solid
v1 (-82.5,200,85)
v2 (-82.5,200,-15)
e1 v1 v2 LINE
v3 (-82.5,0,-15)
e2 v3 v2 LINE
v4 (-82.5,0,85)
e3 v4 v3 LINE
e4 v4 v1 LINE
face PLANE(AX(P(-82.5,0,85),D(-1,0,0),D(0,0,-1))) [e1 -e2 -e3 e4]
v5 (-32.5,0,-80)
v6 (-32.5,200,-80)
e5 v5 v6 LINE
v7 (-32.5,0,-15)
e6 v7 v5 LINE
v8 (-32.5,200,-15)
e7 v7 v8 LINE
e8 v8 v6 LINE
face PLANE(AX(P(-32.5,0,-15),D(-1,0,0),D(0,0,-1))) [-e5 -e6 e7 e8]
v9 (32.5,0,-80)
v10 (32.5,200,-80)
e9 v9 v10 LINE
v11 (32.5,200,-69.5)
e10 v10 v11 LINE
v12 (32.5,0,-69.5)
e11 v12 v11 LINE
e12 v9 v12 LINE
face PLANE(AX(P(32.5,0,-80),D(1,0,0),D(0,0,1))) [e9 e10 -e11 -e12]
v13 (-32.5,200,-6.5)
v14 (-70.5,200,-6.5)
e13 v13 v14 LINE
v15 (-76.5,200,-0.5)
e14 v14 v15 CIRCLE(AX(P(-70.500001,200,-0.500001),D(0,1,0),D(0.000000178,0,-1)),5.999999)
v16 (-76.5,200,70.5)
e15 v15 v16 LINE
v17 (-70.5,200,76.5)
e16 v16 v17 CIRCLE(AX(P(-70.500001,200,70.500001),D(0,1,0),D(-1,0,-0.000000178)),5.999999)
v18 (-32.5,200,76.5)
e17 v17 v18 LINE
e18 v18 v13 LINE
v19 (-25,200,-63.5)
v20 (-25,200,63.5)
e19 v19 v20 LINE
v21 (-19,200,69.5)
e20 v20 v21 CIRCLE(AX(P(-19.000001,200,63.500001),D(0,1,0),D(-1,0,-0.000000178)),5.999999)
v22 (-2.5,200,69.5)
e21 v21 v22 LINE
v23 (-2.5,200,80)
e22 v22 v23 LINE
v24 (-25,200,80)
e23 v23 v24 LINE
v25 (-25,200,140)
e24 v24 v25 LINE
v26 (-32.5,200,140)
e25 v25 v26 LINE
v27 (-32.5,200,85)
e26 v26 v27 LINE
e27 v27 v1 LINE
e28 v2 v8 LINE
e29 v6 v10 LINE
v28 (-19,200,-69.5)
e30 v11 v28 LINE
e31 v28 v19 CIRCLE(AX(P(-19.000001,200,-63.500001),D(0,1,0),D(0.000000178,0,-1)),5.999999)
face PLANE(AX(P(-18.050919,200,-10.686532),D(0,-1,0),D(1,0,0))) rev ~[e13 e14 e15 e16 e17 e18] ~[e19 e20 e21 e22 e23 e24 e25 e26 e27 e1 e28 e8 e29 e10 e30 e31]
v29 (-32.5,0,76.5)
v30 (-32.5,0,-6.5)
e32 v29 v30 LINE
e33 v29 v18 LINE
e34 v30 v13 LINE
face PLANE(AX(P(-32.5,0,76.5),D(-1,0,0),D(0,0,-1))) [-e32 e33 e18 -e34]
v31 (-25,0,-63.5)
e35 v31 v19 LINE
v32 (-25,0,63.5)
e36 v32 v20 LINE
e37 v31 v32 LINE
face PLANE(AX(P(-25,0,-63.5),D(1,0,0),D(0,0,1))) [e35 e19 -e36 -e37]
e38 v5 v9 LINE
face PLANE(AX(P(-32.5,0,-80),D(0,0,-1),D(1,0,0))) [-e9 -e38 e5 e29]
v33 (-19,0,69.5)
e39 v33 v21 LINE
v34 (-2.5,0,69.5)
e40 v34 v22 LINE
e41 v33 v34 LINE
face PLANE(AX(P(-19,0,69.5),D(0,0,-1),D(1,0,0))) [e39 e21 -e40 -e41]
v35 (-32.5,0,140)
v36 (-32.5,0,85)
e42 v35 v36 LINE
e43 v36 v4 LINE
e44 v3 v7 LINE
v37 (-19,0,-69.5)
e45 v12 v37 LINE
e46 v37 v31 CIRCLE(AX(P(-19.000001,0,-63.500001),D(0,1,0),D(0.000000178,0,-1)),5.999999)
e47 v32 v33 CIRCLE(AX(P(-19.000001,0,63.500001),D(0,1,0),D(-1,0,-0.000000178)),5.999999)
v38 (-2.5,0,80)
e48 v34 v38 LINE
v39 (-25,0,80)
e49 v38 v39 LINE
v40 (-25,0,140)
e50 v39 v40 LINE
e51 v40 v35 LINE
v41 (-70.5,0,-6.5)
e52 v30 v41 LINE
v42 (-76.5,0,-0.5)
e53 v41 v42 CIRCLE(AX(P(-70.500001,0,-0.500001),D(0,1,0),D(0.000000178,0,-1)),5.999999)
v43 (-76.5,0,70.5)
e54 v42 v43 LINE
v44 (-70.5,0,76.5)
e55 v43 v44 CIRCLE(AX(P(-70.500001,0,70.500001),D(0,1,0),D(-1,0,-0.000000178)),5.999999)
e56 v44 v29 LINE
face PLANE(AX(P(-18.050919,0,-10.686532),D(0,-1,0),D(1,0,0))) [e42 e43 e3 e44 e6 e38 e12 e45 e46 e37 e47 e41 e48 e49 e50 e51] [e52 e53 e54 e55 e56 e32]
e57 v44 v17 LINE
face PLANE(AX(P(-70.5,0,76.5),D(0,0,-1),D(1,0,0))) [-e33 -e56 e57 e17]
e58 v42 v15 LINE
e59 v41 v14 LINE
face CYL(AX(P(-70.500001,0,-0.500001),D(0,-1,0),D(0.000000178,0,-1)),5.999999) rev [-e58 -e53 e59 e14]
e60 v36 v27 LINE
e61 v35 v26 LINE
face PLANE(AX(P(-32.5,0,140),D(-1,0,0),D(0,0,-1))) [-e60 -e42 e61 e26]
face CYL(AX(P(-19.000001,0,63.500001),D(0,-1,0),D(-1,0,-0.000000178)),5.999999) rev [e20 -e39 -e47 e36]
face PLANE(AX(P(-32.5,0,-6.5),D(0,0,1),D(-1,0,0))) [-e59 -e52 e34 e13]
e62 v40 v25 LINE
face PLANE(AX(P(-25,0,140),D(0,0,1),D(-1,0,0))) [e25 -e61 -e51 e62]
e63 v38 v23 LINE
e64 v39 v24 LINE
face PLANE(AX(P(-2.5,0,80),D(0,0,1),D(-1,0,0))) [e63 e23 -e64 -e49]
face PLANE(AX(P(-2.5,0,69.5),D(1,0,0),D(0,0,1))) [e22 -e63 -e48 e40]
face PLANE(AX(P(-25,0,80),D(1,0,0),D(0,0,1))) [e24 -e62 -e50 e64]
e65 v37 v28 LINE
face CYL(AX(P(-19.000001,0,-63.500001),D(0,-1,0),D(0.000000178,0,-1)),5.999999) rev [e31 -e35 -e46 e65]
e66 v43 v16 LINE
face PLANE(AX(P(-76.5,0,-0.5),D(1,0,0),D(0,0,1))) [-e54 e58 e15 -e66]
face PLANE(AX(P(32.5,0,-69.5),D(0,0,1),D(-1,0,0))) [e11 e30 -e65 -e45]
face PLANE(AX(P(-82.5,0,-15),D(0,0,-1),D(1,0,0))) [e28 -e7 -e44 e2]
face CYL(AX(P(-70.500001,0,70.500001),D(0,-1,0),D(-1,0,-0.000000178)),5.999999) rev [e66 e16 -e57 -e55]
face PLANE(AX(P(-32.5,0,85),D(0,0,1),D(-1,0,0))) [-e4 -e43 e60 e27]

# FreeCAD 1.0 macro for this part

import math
import FreeCAD as App
import Part
import Sketcher
Q = App.Units.Quantity

doc = App.newDocument("Part")
body = doc.addObject("PartDesign::Body", "Body")

sketch1 = body.newObject("Sketcher::SketchObject", "Sketch")
sketch1.AttachmentSupport = (doc.getObject("XZ_Plane"), [""])
sketch1.MapMode = "FlatFace"
sketch1.addGeometry([
    Part.LineSegment(App.Vector(-2, 70, 0), App.Vector(-2, 80, 0)),
    Part.LineSegment(App.Vector(-2, 80, 0), App.Vector(-25, 80, 0)),
    Part.LineSegment(App.Vector(-25, 80, 0), App.Vector(-25, 140, 0)),
    Part.LineSegment(App.Vector(-25, 140, 0), App.Vector(-32, 140, 0)),
    Part.LineSegment(App.Vector(-32, 140, 0), App.Vector(-32, 85, 0)),
    Part.LineSegment(App.Vector(-32, 85, 0), App.Vector(-82, 85, 0)),
    Part.LineSegment(App.Vector(-82, 85, 0), App.Vector(-82, -15, 0)),
    Part.LineSegment(App.Vector(-82, -15, 0), App.Vector(-32, -15, 0)),
    Part.LineSegment(App.Vector(-32, -15, 0), App.Vector(-32, -80, 0)),
    Part.LineSegment(App.Vector(-32, -80, 0), App.Vector(32, -80, 0)),
    Part.LineSegment(App.Vector(32, -80, 0), App.Vector(32, -70, 0)),
    Part.LineSegment(App.Vector(32, -70, 0), App.Vector(-19, -70, 0)),
    Part.ArcOfCircle(Part.Circle(App.Vector(-19, -64, 0), App.Vector(0, 0, 1), 6), math.radians(180), math.radians(270)),
    Part.LineSegment(App.Vector(-25, -64, 0), App.Vector(-25, 64, 0)),
    Part.ArcOfCircle(Part.Circle(App.Vector(-19, 64, 0), App.Vector(0, 0, 1), 6), math.radians(90), math.radians(180)),
    Part.LineSegment(App.Vector(-19, 70, 0), App.Vector(-2, 70, 0)),
    Part.LineSegment(App.Vector(-32, 76, 0), App.Vector(-32, -6, 0)),
    Part.LineSegment(App.Vector(-32, -6, 0), App.Vector(-70, -6, 0)),
    Part.ArcOfCircle(Part.Circle(App.Vector(-71, -1, 0), App.Vector(0, 0, 1), 6), math.radians(180), math.radians(270)),
    Part.LineSegment(App.Vector(-76, 0, 0), App.Vector(-76, 70, 0)),
    Part.ArcOfCircle(Part.Circle(App.Vector(-71, 71, 0), App.Vector(0, 0, 1), 6), math.radians(90), math.radians(180)),
    Part.LineSegment(App.Vector(-70, 76, 0), App.Vector(-32, 76, 0)),
], False)
sketch1.addConstraint([
    Sketcher.Constraint("Coincident", 0, 2, 1, 1),
    Sketcher.Constraint("Coincident", 1, 2, 2, 1),
    Sketcher.Constraint("Coincident", 2, 2, 3, 1),
    Sketcher.Constraint("Coincident", 3, 2, 4, 1),
    Sketcher.Constraint("Coincident", 4, 2, 5, 1),
    Sketcher.Constraint("Coincident", 5, 2, 6, 1),
    Sketcher.Constraint("Coincident", 6, 2, 7, 1),
    Sketcher.Constraint("Coincident", 7, 2, 8, 1),
    Sketcher.Constraint("Coincident", 8, 2, 9, 1),
    Sketcher.Constraint("Coincident", 9, 2, 10, 1),
    Sketcher.Constraint("Coincident", 10, 2, 11, 1),
    Sketcher.Constraint("Tangent", 11, 2, 12, 2),
    Sketcher.Constraint("Tangent", 12, 1, 13, 1),
    Sketcher.Constraint("Tangent", 13, 2, 14, 2),
    Sketcher.Constraint("Tangent", 14, 1, 15, 1),
    Sketcher.Constraint("Coincident", 15, 2, 0, 1),
    Sketcher.Constraint("Coincident", 16, 2, 17, 1),
    Sketcher.Constraint("Tangent", 17, 2, 18, 2),
    Sketcher.Constraint("Tangent", 18, 1, 19, 1),
    Sketcher.Constraint("Tangent", 19, 2, 20, 2),
    Sketcher.Constraint("Tangent", 20, 1, 21, 1),
    Sketcher.Constraint("Coincident", 21, 2, 16, 1),
    Sketcher.Constraint("Vertical", 0),
    Sketcher.Constraint("Horizontal", 1),
    Sketcher.Constraint("Vertical", 2),
    Sketcher.Constraint("Horizontal", 3),
    Sketcher.Constraint("Vertical", 4),
    Sketcher.Constraint("Horizontal", 5),
    Sketcher.Constraint("Vertical", 6),
    Sketcher.Constraint("Horizontal", 7),
    Sketcher.Constraint("Vertical", 8),
    Sketcher.Constraint("Horizontal", 9),
    Sketcher.Constraint("Vertical", 10),
    Sketcher.Constraint("Horizontal", 11),
    Sketcher.Constraint("Vertical", 13),
    Sketcher.Constraint("Horizontal", 15),
    Sketcher.Constraint("Vertical", 16),
    Sketcher.Constraint("Horizontal", 17),
    Sketcher.Constraint("Vertical", 19),
    Sketcher.Constraint("Horizontal", 21),
    Sketcher.Constraint("Equal", 12, 14),
    Sketcher.Constraint("Equal", 14, 18),
    Sketcher.Constraint("Equal", 18, 20),
    Sketcher.Constraint("Vertical", 4, 2, 7, 2),
    Sketcher.Constraint("Vertical", 2, 2, 12, 1),
    Sketcher.Constraint("Vertical", 8, 2, 16, 2),
    Sketcher.Constraint("Equal", 9, 8),
    Sketcher.Constraint("Equal", 0, 10),
    Sketcher.Constraint("Radius", 12, Q("5.999999 mm")),
    Sketcher.Constraint("DistanceX", 5, 2, 5, 1, Q("50 mm")),
    Sketcher.Constraint("DistanceX", 9, 1, 9, 2, Q("65 mm")),
    Sketcher.Constraint("DistanceX", 17, 2, 17, 1, Q("38 mm")),
    Sketcher.Constraint("DistanceY", 2, 1, 2, 2, Q("60 mm")),
    Sketcher.Constraint("DistanceY", 4, 2, 4, 1, Q("55 mm")),
    Sketcher.Constraint("DistanceY", 6, 2, 6, 1, Q("100 mm")),
    Sketcher.Constraint("DistanceY", 13, 1, 13, 2, Q("127 mm")),
    Sketcher.Constraint("DistanceY", 16, 2, 16, 1, Q("83 mm")),
    Sketcher.Constraint("DistanceX", 1, 2, 1, 1, Q("22.5 mm")),
    Sketcher.Constraint("DistanceX", 3, 2, 3, 1, Q("7.5 mm")),
    Sketcher.Constraint("DistanceX", 12, 3, -1, 1, Q("19.000001 mm")),
    Sketcher.Constraint("DistanceY", -1, 1, 0, 2, Q("80 mm")),
    Sketcher.Constraint("DistanceY", 12, 3, 18, 3, Q("63 mm")),
])
pad1 = body.newObject("PartDesign::Pad", "Pad")
pad1.Profile = sketch1
pad1.Length = 200
pad1.Reversed = True

doc.recompute()
